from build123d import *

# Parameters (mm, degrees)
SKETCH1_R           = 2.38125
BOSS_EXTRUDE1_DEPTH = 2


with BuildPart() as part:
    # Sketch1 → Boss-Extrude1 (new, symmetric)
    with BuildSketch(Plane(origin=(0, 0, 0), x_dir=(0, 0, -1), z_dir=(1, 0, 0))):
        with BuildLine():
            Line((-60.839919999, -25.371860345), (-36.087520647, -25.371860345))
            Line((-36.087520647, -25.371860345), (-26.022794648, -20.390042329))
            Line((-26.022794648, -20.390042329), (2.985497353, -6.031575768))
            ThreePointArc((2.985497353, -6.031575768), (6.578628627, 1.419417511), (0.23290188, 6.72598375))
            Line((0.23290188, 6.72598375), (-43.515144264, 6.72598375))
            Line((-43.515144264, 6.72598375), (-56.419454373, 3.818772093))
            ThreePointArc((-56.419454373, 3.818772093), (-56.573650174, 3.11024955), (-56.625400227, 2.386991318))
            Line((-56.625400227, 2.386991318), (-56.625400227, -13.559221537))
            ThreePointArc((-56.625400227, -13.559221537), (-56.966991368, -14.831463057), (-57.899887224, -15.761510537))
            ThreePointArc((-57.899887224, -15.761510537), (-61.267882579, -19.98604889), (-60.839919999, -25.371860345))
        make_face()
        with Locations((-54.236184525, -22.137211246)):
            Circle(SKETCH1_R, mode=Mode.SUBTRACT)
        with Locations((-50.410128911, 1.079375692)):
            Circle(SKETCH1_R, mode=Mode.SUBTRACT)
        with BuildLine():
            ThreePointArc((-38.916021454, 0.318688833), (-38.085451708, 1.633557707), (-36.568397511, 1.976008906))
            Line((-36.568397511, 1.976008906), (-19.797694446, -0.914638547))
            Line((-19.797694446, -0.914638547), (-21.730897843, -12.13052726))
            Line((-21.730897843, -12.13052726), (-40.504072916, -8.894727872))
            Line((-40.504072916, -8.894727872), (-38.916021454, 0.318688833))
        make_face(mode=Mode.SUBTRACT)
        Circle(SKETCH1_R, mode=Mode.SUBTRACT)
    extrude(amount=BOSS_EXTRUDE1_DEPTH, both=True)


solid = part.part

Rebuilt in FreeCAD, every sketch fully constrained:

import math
import FreeCAD as App
import Part
import Sketcher

V = App.Vector
Q = App.Units.Quantity

doc = App.newDocument("Part")
body = doc.addObject("PartDesign::Body", "Body")

# Sketch on YZ plane
sketch1 = body.newObject("Sketcher::SketchObject", "Sketch")
sketch1.AttachmentSupport = (doc.getObject("YZ_Plane"), [""])
sketch1.MapMode = "FlatFace"
sketch1.addGeometry([
    Part.LineSegment(V(-25.4, 60.8, 0), V(-25.4, 36.1, 0)),  # 0
    Part.LineSegment(V(-25.4, 36.1, 0), V(-20.4, 26, 0)),  # 1
    Part.LineSegment(V(-20.4, 26, 0), V(-6, -3, 0)),  # 2
    Part.ArcOfCircle(Part.Circle(V(0, 0, 0), V(0, 0, 1), 6.7), math.radians(-154), math.radians(-2)),  # 3
    Part.LineSegment(V(6.7, -0.2, 0), V(6.7, 43.5, 0)),  # 4
    Part.LineSegment(V(6.7, 43.5, 0), V(3.8, 56.4, 0)),  # 5
    Part.ArcOfCircle(Part.Circle(V(2.4, 51.5, 0), V(0, 0, 1), 5.1), math.radians(73.63), math.radians(90)),  # 6
    Part.LineSegment(V(2.4, 56.6, 0), V(-13.6, 56.6, 0)),  # 7
    Part.ArcOfCircle(Part.Circle(V(-13.6, 59.2, 0), V(0, 0, 1), 2.5), math.radians(-150), math.radians(-90)),  # 8
    Part.ArcOfCircle(Part.Circle(V(-22.1, 54.2, 0), V(0, 0, 1), 7.4), math.radians(30), math.radians(116)),  # 9
    Part.Circle(V(-22.1, 54.2, 0), V(0, 0, 1), 2.4),  # 10
    Part.LineSegment(V(-8.9, 40.5, 0), V(0.3, 38.9, 0)),  # 11
    Part.ArcOfCircle(Part.Circle(V(0, 36.9, 0), V(0, 0, 1), 2), math.radians(-10), math.radians(80)),  # 12
    Part.LineSegment(V(2, 36.6, 0), V(-0.9, 19.8, 0)),  # 13
    Part.LineSegment(V(-0.9, 19.8, 0), V(-12.1, 21.7, 0)),  # 14
    Part.LineSegment(V(-12.1, 21.7, 0), V(-8.9, 40.5, 0)),  # 15
    Part.Circle(V(1.1, 50.4, 0), V(0, 0, 1), 2.4),  # 16
    Part.Circle(V(0, 0, 0), V(0, 0, 1), 2.4),  # 17
], False)
sketch1.addConstraint([
    Sketcher.Constraint("Coincident", 0, 2, 1, 1),
    Sketcher.Constraint("Coincident", 1, 2, 2, 1),
    Sketcher.Constraint("Tangent", 2, 2, 3, 1),
    Sketcher.Constraint("Coincident", 3, 2, 4, 1),
    Sketcher.Constraint("Coincident", 4, 2, 5, 1),
    Sketcher.Constraint("Coincident", 5, 2, 6, 1),
    Sketcher.Constraint("Tangent", 6, 2, 7, 1),
    Sketcher.Constraint("Tangent", 7, 2, 8, 2),
    Sketcher.Constraint("Tangent", 8, 1, 9, 1),
    Sketcher.Constraint("Coincident", 9, 2, 0, 1),
    Sketcher.Constraint("Tangent", 11, 2, 12, 2),
    Sketcher.Constraint("Tangent", 12, 1, 13, 1),
    Sketcher.Constraint("Coincident", 13, 2, 14, 1),
    Sketcher.Constraint("Coincident", 14, 2, 15, 1),
    Sketcher.Constraint("Coincident", 15, 2, 11, 1),
    Sketcher.Constraint("Vertical", 0),
    Sketcher.Constraint("Vertical", 4),
    Sketcher.Constraint("Horizontal", 7),
    Sketcher.Constraint("Coincident", 3, 3, -1, 1),
    Sketcher.Constraint("Coincident", 17, 3, -1, 1),
    Sketcher.Constraint("Coincident", 10, 3, 9, 3),
    Sketcher.Constraint("Equal", 10, 16),
    Sketcher.Constraint("Equal", 16, 17),
    Sketcher.Constraint("Parallel", 1, 2),
    Sketcher.Constraint("Perpendicular", 11, 13),
    Sketcher.Constraint("Perpendicular", 13, 14),
    Sketcher.Constraint("Perpendicular", 14, 15),
    Sketcher.Constraint("Radius", 6, Q("0.2 in")),
    Sketcher.Constraint("Radius", 8, Q("0.1 in")),
    Sketcher.Constraint("Radius", 12, Q("0.08 in")),
    Sketcher.Constraint("Diameter", 10, Q("0.1875 in")),
    Sketcher.Constraint("Distance", 13, Q("0.67 in")),
    Sketcher.Constraint("DistanceY", 0, 2, 0, 1, Q("24.752399 mm")),
    Sketcher.Constraint("Radius", 3, Q("6.730015 mm")),
    Sketcher.Constraint("Radius", 9, Q("7.353385 mm")),
    Sketcher.Constraint("DistanceY", -1, 1, 6, 3, Q("51.5454 mm")),
    Sketcher.Constraint("DistanceY", 3, 2, -1, 1, Q("0.232902 mm")),
    Sketcher.Constraint("DistanceX", 9, 3, 8, 1, Q("6.375701 mm")),
    Sketcher.Constraint("DistanceX", 8, 1, 6, 2, Q("18.148502 mm")),
    Sketcher.Constraint("DistanceY", 14, 2, 12, 1, Q("14.8375 mm")),
    Sketcher.Constraint("Distance", 2, Q("32.367369 mm")),
    Sketcher.Constraint("Distance", 5, Q("13.22774 mm")),
    Sketcher.Constraint("DistanceY", 4, 1, 4, 2, Q("43.748046 mm")),
    Sketcher.Constraint("DistanceX", -1, 1, 6, 3, Q("2.386991 mm")),
    Sketcher.Constraint("DistanceY", -1, 1, 12, 3, Q("36.913549 mm")),
    Sketcher.Constraint("DistanceY", -1, 1, 16, 3, Q("50.410129 mm")),
    Sketcher.Constraint("DistanceX", 0, 2, -1, 1, Q("25.37186 mm")),
    Sketcher.Constraint("DistanceX", -1, 1, 11, 2, Q("0.318689 mm")),
    Sketcher.Constraint("DistanceY", -1, 1, 11, 2, Q("38.916021 mm")),
    Sketcher.Constraint("DistanceX", 12, 3, 16, 3, Q("1.105839 mm")),
])
pad1 = body.newObject("PartDesign::Pad", "Pad")
pad1.Profile = sketch1
pad1.Length = 4
pad1.Midplane = True

doc.recompute()
